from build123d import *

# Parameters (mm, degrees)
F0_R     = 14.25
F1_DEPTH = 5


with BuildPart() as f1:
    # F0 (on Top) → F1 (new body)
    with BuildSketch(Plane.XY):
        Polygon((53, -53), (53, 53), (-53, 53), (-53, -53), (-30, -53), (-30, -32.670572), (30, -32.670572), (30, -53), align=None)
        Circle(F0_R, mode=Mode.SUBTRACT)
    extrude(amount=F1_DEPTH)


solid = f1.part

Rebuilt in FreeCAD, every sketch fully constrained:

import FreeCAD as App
import Part
import Sketcher
from FreeCAD import Vector


def add_polygon(sketch, points):
    """Adds a closed chain of lines whose ends are joined by coincident constraints."""
    first, n = sketch.GeometryCount, len(points)
    for a, b in zip(points, points[1:] + points[:1]):
        sketch.addGeometry(Part.LineSegment(App.Vector(*a, 0), App.Vector(*b, 0)), False)
    for i in range(n):
        sketch.addConstraint(Sketcher.Constraint("Coincident", first + i, 2, first + (i + 1) % n, 1))

doc = App.newDocument("Part")
params = doc.addObject("Spreadsheet::Sheet", "Params")
for row, (alias, value) in enumerate([
    ("sketch1_diameter", "28.5 mm"),
    ("sketch1_width", "106 mm"),
    ("sketch1_width2", "23 mm"),
    ("pad1_length", "5 mm"),
], start=1):
    params.set(f"A{row}", alias)
    params.set(f"B{row}", "=" + value)
    params.setAlias(f"B{row}", alias)

body = doc.addObject("PartDesign::Body", "Body")

sketch1 = body.newObject("Sketcher::SketchObject", "Sketch")
sketch1.AttachmentSupport = (doc.getObject("XY_Plane"), [""])
sketch1.MapMode = "FlatFace"
add_polygon(sketch1, [(53, -53), (53, 53), (-53, 53), (-53, -53), (-30, -53), (-30, -33), (30, -33), (30, -53)])
sketch1.addGeometry(Part.Circle(Vector(0, 0, 0), Vector(0, 0, 1), 14), False)
sketch1.addConstraint(Sketcher.Constraint("Vertical", 0))
sketch1.addConstraint(Sketcher.Constraint("Horizontal", 1))
sketch1.addConstraint(Sketcher.Constraint("Vertical", 2))
sketch1.addConstraint(Sketcher.Constraint("Horizontal", 3))
sketch1.addConstraint(Sketcher.Constraint("Vertical", 4))
sketch1.addConstraint(Sketcher.Constraint("Horizontal", 5))
sketch1.addConstraint(Sketcher.Constraint("Vertical", 6))
sketch1.addConstraint(Sketcher.Constraint("Horizontal", 7))
sketch1.addConstraint(Sketcher.Constraint("Coincident", 8, 3, -1, 1))
sketch1.addConstraint(Sketcher.Constraint("Symmetric", 0, 2, 2, 2, -1, 1))
sketch1.addConstraint(Sketcher.Constraint("Symmetric", 3, 2, 6, 2, -2))
sketch1.addConstraint(Sketcher.Constraint("Equal", 1, 0))
sketch1.addConstraint(Sketcher.Constraint("Diameter", 8, 28.5))
sketch1.addConstraint(Sketcher.Constraint("DistanceX", 1, 2, 1, 1, 106.0))
sketch1.addConstraint(Sketcher.Constraint("DistanceX", 3, 1, 3, 2, 23.0))
sketch1.addConstraint(Sketcher.Constraint("DistanceY", 4, 1, 4, 2, 20.329428))
sketch1.setExpression("Constraints[20]", "Params.sketch1_diameter")
sketch1.setExpression("Constraints[21]", "Params.sketch1_width")
sketch1.setExpression("Constraints[22]", "Params.sketch1_width2")
pad1 = body.newObject("PartDesign::Pad", "Pad")
pad1.Profile = sketch1
pad1.setExpression("Length", "Params.pad1_length")

doc.recompute()
